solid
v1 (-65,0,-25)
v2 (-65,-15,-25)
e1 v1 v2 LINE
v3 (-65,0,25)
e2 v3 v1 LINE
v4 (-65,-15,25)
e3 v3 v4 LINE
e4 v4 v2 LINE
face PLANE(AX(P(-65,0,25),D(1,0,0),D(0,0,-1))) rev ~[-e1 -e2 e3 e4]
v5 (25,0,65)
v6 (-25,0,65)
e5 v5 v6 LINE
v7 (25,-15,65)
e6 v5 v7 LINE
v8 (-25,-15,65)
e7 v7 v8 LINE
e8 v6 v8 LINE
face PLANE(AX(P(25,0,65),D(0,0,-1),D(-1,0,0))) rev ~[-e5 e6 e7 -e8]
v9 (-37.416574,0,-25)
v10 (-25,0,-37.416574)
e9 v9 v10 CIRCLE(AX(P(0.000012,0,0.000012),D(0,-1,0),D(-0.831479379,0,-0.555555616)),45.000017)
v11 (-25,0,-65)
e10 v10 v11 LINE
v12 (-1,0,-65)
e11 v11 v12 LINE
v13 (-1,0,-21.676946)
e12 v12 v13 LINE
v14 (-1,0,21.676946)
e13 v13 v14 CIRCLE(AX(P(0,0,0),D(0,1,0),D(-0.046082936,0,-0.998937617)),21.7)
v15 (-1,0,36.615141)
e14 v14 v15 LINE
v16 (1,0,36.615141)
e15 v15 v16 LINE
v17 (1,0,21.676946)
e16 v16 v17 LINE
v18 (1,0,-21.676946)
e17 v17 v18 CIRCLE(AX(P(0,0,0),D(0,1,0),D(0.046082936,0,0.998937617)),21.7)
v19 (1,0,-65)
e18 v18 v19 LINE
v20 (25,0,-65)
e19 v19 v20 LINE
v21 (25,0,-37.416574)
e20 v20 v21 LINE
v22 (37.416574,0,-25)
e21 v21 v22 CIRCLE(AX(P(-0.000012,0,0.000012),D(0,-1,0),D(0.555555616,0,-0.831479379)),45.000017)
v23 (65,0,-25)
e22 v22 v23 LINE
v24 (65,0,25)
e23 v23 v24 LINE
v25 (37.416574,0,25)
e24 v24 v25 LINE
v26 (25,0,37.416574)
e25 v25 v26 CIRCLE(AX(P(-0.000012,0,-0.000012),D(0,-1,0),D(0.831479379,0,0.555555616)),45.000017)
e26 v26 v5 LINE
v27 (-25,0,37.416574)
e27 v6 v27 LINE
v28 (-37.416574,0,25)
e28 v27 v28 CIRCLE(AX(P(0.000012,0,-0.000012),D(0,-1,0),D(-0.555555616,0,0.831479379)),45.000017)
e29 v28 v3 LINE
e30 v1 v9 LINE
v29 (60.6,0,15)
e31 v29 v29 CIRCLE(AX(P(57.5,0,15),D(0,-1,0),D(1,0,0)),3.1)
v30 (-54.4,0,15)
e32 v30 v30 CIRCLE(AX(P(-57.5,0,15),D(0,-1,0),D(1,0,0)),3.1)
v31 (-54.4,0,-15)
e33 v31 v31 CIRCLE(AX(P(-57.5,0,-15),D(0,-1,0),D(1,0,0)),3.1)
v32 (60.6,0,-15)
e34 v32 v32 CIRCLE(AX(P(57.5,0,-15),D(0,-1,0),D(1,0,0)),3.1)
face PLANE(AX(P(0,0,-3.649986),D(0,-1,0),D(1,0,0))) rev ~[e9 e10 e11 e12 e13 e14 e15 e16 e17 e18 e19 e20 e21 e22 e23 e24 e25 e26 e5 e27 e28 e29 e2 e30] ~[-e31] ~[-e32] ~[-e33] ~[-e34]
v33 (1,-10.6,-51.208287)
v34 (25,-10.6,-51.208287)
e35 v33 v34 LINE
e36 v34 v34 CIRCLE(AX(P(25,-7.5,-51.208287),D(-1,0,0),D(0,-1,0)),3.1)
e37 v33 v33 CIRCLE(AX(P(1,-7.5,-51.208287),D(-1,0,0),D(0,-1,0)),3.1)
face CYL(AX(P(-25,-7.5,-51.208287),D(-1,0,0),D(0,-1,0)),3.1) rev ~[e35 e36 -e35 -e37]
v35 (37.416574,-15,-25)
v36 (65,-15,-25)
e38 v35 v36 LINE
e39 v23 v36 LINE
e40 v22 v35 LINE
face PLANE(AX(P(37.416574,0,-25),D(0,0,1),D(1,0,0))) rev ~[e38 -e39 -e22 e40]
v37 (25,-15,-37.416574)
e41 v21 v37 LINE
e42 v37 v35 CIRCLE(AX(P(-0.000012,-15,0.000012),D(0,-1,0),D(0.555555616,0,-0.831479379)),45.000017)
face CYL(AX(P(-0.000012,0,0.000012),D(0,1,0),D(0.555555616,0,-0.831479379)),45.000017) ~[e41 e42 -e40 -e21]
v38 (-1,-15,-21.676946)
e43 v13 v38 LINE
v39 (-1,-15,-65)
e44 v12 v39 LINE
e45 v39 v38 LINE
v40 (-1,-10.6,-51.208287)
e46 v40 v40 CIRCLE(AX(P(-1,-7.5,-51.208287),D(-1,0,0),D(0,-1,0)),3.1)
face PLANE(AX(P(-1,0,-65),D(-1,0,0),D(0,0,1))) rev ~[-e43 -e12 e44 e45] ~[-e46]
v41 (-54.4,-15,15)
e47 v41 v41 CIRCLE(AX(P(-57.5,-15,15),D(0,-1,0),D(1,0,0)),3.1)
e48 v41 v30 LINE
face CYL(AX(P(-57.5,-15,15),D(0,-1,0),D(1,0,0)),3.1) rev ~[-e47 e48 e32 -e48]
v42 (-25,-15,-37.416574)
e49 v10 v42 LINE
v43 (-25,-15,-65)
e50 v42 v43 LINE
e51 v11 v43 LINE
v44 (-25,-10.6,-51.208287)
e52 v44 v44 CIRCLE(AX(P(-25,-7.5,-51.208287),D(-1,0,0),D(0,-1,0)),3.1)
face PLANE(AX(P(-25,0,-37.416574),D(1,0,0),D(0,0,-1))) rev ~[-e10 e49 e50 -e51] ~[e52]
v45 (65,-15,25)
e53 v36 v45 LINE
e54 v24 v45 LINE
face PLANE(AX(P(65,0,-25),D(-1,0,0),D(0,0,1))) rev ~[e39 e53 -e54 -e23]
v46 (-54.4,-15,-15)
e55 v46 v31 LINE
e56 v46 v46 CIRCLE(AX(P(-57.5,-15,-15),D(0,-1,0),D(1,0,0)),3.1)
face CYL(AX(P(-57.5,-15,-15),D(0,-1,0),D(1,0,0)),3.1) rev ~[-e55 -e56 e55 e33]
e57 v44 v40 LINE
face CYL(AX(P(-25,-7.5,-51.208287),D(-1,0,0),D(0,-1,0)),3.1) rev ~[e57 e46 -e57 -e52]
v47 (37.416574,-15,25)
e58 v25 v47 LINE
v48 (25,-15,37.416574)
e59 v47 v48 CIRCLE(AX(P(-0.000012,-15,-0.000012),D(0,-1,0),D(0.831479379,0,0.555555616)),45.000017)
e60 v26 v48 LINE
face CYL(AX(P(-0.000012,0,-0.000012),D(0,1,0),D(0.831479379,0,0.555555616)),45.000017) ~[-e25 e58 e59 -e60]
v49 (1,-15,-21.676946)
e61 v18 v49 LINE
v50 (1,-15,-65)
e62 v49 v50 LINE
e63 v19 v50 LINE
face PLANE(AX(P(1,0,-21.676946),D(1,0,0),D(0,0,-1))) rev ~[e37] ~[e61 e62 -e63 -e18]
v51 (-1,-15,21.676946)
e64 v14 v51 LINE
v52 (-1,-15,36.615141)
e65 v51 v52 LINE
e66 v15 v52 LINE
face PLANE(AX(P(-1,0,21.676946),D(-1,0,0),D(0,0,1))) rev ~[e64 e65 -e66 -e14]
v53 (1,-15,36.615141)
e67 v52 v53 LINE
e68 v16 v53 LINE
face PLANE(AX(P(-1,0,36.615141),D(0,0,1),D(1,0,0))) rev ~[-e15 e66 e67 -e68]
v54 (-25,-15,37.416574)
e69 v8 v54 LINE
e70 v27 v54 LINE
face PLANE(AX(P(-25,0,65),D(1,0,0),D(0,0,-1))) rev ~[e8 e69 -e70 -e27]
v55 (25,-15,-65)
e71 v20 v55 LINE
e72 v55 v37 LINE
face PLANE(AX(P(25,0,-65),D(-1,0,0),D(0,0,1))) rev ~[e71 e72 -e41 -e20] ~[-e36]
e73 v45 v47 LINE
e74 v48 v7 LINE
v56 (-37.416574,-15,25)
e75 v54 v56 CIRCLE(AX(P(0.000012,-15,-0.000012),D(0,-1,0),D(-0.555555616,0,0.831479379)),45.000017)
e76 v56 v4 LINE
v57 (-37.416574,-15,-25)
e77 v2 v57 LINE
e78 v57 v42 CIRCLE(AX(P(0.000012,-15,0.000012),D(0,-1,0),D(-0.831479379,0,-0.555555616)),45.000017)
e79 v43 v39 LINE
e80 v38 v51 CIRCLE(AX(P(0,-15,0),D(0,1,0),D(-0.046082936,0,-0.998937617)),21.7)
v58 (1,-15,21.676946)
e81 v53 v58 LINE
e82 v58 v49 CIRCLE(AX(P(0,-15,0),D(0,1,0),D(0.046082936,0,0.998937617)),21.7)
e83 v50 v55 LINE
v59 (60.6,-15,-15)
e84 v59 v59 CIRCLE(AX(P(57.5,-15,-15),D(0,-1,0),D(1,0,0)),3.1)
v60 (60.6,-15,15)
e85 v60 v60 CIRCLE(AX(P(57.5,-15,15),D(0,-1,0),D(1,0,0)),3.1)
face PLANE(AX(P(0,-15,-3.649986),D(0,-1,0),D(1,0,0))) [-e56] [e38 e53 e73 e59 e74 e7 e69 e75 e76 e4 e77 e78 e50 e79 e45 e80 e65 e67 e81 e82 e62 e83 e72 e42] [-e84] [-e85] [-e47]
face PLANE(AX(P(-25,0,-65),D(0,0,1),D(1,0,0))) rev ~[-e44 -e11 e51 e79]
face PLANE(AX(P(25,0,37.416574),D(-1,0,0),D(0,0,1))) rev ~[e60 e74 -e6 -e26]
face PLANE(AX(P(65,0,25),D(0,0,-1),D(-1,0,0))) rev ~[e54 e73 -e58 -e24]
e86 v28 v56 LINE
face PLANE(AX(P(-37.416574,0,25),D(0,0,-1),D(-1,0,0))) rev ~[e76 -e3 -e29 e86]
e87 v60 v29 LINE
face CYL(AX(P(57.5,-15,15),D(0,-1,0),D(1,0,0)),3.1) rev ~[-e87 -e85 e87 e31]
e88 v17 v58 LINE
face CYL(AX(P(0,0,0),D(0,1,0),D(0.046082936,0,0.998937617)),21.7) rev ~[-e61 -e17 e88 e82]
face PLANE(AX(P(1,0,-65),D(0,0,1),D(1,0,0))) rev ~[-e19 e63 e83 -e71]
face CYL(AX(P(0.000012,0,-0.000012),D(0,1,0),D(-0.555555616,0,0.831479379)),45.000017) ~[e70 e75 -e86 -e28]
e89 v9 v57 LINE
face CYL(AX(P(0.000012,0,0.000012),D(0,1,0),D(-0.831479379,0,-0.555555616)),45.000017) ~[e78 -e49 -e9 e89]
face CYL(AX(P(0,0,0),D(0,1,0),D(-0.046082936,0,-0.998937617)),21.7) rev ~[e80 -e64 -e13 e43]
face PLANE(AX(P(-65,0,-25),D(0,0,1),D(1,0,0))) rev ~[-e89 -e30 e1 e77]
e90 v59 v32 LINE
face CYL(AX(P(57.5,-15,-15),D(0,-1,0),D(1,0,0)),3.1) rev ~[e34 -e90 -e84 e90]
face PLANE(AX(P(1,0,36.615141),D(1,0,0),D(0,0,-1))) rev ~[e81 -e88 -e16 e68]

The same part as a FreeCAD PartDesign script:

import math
import FreeCAD as App
import Part
import Sketcher
Q = App.Units.Quantity

doc = App.newDocument("Part")
body = doc.addObject("PartDesign::Body", "Body")

# Sketch on XZ plane
sketch1 = body.newObject("Sketcher::SketchObject", "Sketch")
sketch1.AttachmentSupport = (doc.getObject("XZ_Plane"), [""])
sketch1.MapMode = "FlatFace"
sketch1.addGeometry([
    Part.LineSegment(App.Vector(65, 25, 0), App.Vector(37.416574, 25, 0)),  # 0
    Part.ArcOfCircle(Part.Circle(App.Vector(-0.000012, -0.000012, 0), App.Vector(0, 0, 1), 45.000017), math.radians(33.748993), math.radians(56.251007)),  # 1
    Part.LineSegment(App.Vector(25, 37.416574, 0), App.Vector(25, 65, 0)),  # 2
    Part.LineSegment(App.Vector(25, 65, 0), App.Vector(-25, 65, 0)),  # 3
    Part.LineSegment(App.Vector(-25, 65, 0), App.Vector(-25, 37.416574, 0)),  # 4
    Part.ArcOfCircle(Part.Circle(App.Vector(0.000012, -0.000012, 0), App.Vector(0, 0, 1), 45.000017), math.radians(123.748993), math.radians(146.251007)),  # 5
    Part.LineSegment(App.Vector(-37.416574, 25, 0), App.Vector(-65, 25, 0)),  # 6
    Part.LineSegment(App.Vector(-65, 25, 0), App.Vector(-65, -25, 0)),  # 7
    Part.LineSegment(App.Vector(-65, -25, 0), App.Vector(-37.416574, -25, 0)),  # 8
    Part.ArcOfCircle(Part.Circle(App.Vector(0.000012, 0.000012, 0), App.Vector(0, 0, 1), 45.000017), math.radians(-146.251007), math.radians(-123.748993)),  # 9
    Part.LineSegment(App.Vector(-25, -37.416574, 0), App.Vector(-25, -65, 0)),  # 10
    Part.LineSegment(App.Vector(-25, -65, 0), App.Vector(-1, -65, 0)),  # 11
    Part.LineSegment(App.Vector(-1, -65, 0), App.Vector(-1, -21.676946, 0)),  # 12
    Part.ArcOfCircle(Part.Circle(App.Vector(0, 0, 0), App.Vector(0, 0, 1), 21.7), math.radians(92.641293), math.radians(267.358707)),  # 13
    Part.LineSegment(App.Vector(-1, 21.676946, 0), App.Vector(-1, 36.615141, 0)),  # 14
    Part.LineSegment(App.Vector(-1, 36.615141, 0), App.Vector(1, 36.615141, 0)),  # 15
    Part.LineSegment(App.Vector(1, 36.615141, 0), App.Vector(1, 21.676946, 0)),  # 16
    Part.ArcOfCircle(Part.Circle(App.Vector(0, 0, 0), App.Vector(0, 0, 1), 21.7), math.radians(-87.358707), math.radians(87.358707)),  # 17
    Part.LineSegment(App.Vector(1, -21.676946, 0), App.Vector(1, -65, 0)),  # 18
    Part.LineSegment(App.Vector(1, -65, 0), App.Vector(25, -65, 0)),  # 19
    Part.LineSegment(App.Vector(25, -65, 0), App.Vector(25, -37.416574, 0)),  # 20
    Part.ArcOfCircle(Part.Circle(App.Vector(-0.000012, 0.000012, 0), App.Vector(0, 0, 1), 45.000017), math.radians(-56.251007), math.radians(-33.748993)),  # 21
    Part.LineSegment(App.Vector(37.416574, -25, 0), App.Vector(65, -25, 0)),  # 22
    Part.LineSegment(App.Vector(65, -25, 0), App.Vector(65, 25, 0)),  # 23
], False)
sketch1.addConstraint([
    Sketcher.Constraint("Coincident", 0, 2, 1, 1),
    Sketcher.Constraint("Coincident", 1, 2, 2, 1),
    Sketcher.Constraint("Coincident", 2, 2, 3, 1),
    Sketcher.Constraint("Coincident", 3, 2, 4, 1),
    Sketcher.Constraint("Coincident", 4, 2, 5, 1),
    Sketcher.Constraint("Coincident", 5, 2, 6, 1),
    Sketcher.Constraint("Coincident", 6, 2, 7, 1),
    Sketcher.Constraint("Coincident", 7, 2, 8, 1),
    Sketcher.Constraint("Coincident", 8, 2, 9, 1),
    Sketcher.Constraint("Coincident", 9, 2, 10, 1),
    Sketcher.Constraint("Coincident", 10, 2, 11, 1),
    Sketcher.Constraint("Coincident", 11, 2, 12, 1),
    Sketcher.Constraint("Coincident", 12, 2, 13, 2),
    Sketcher.Constraint("Coincident", 13, 1, 14, 1),
    Sketcher.Constraint("Coincident", 14, 2, 15, 1),
    Sketcher.Constraint("Coincident", 15, 2, 16, 1),
    Sketcher.Constraint("Coincident", 16, 2, 17, 2),
    Sketcher.Constraint("Coincident", 17, 1, 18, 1),
    Sketcher.Constraint("Coincident", 18, 2, 19, 1),
    Sketcher.Constraint("Coincident", 19, 2, 20, 1),
    Sketcher.Constraint("Coincident", 20, 2, 21, 1),
    Sketcher.Constraint("Coincident", 21, 2, 22, 1),
    Sketcher.Constraint("Coincident", 22, 2, 23, 1),
    Sketcher.Constraint("Coincident", 23, 2, 0, 1),
    Sketcher.Constraint("Horizontal", 0),
    Sketcher.Constraint("Vertical", 2),
    Sketcher.Constraint("Horizontal", 3),
    Sketcher.Constraint("Vertical", 4),
    Sketcher.Constraint("Horizontal", 6),
    Sketcher.Constraint("Vertical", 7),
    Sketcher.Constraint("Horizontal", 8),
    Sketcher.Constraint("Vertical", 10),
    Sketcher.Constraint("Horizontal", 11),
    Sketcher.Constraint("Vertical", 12),
    Sketcher.Constraint("Vertical", 14),
    Sketcher.Constraint("Horizontal", 15),
    Sketcher.Constraint("Vertical", 16),
    Sketcher.Constraint("Vertical", 18),
    Sketcher.Constraint("Horizontal", 19),
    Sketcher.Constraint("Vertical", 20),
    Sketcher.Constraint("Horizontal", 22),
    Sketcher.Constraint("Vertical", 23),
    Sketcher.Constraint("Coincident", 13, 3, -1, 1),
    Sketcher.Constraint("Coincident", 17, 3, -1, 1),
    Sketcher.Constraint("Equal", 1, 5),
    Sketcher.Constraint("Equal", 5, 9),
    Sketcher.Constraint("Equal", 13, 17),
    Sketcher.Constraint("Equal", 9, 21),
    Sketcher.Constraint("Symmetric", 1, 3, 9, 3, -1, 1),
    Sketcher.Constraint("Symmetric", 5, 3, 21, 3, -1, 1),
    Sketcher.Constraint("Symmetric", 2, 2, 10, 2, -1, 1),
    Sketcher.Constraint("Symmetric", 3, 2, 19, 2, -1, 1),
    Sketcher.Constraint("Symmetric", 6, 2, 22, 2, -1, 1),
    Sketcher.Constraint("Symmetric", 1, 3, 5, 3, -2),
    Sketcher.Constraint("Horizontal", 1, 2, 4, 2),
    Sketcher.Constraint("Horizontal", 0, 2, 5, 2),
    Sketcher.Constraint("Horizontal", 13, 1, 16, 2),
    Sketcher.Constraint("Horizontal", 12, 2, 17, 1),
    Sketcher.Constraint("Horizontal", 8, 2, 21, 2),
    Sketcher.Constraint("Vertical", 12, 2, 13, 1),
    Sketcher.Constraint("Equal", 22, 2),
    Sketcher.Constraint("Equal", 3, 7),
    Sketcher.Constraint("Radius", 13, Q("21.7 mm")),
    Sketcher.Constraint("DistanceX", 3, 2, 3, 1, Q("50 mm")),
    Sketcher.Constraint("DistanceX", 11, 1, 11, 2, Q("24 mm")),
    Sketcher.Constraint("DistanceY", -1, 1, 2, 2, Q("65 mm")),
    Sketcher.Constraint("DistanceX", 6, 2, -1, 1, Q("65 mm")),
    Sketcher.Constraint("Radius", 1, Q("45.000017 mm")),
    Sketcher.Constraint("DistanceX", 0, 2, 0, 1, Q("27.583426 mm")),
    Sketcher.Constraint("DistanceY", 14, 1, 14, 2, Q("14.938195 mm")),
])
pad1 = body.newObject("PartDesign::Pad", "Pad")
pad1.Profile = sketch1
pad1.Length = 15

# Sketch on XZ plane
sketch2 = body.newObject("Sketcher::SketchObject", "Sketch001")
sketch2.AttachmentSupport = (doc.getObject("XZ_Plane"), [""])
sketch2.MapMode = "FlatFace"
sketch2.AttachmentOffset = App.Placement(App.Vector(0, 0, 15), App.Rotation())
sketch2.addGeometry([
    Part.Circle(App.Vector(57.5, 15, 0), App.Vector(0, 0, 1), 3.1),
    Part.Circle(App.Vector(57.5, -15, 0), App.Vector(0, 0, 1), 3.1),
    Part.Circle(App.Vector(-57.5, 15, 0), App.Vector(0, 0, 1), 3.1),
    Part.Circle(App.Vector(-57.5, -15, 0), App.Vector(0, 0, 1), 3.1),
], False)
sketch2.addConstraint([
    Sketcher.Constraint("Equal", 0, 1),
    Sketcher.Constraint("Equal", 1, 2),
    Sketcher.Constraint("Equal", 2, 3),
    Sketcher.Constraint("Symmetric", 1, 3, 2, 3, -1, 1),
    Sketcher.Constraint("Symmetric", 0, 3, 3, 3, -1, 1),
    Sketcher.Constraint("Symmetric", 0, 3, 2, 3, -2),
    Sketcher.Constraint("Diameter", 0, Q("6.2 mm")),
    Sketcher.Constraint("DistanceY", -1, 1, 0, 3, Q("15 mm")),
    Sketcher.Constraint("DistanceX", 2, 3, 0, 3, Q("115 mm")),
])
pocket1 = body.newObject("PartDesign::Pocket", "Pocket")
pocket1.Profile = sketch2
pocket1.Length = 25

# Sketch on YZ plane
sketch3 = body.newObject("Sketcher::SketchObject", "Sketch002")
sketch3.AttachmentSupport = (doc.getObject("YZ_Plane"), [""])
sketch3.MapMode = "FlatFace"
sketch3.AttachmentOffset = App.Placement(App.Vector(0, 0, -25), App.Rotation())
sketch3.addGeometry(Part.Circle(App.Vector(-7.5, -51.2, 0), App.Vector(0, 0, 1), 3.1), False)
sketch3.addConstraint([
    Sketcher.Constraint("Diameter", 0, Q("6.2 mm")),
    Sketcher.Constraint("DistanceX", 0, 3, -1, 1, Q("7.5 mm")),
    Sketcher.Constraint("DistanceY", 0, 3, -1, 1, Q("51.208287 mm")),
])
pocket2 = body.newObject("PartDesign::Pocket", "Pocket001")
pocket2.Profile = sketch3
pocket2.Length = 56.6
pocket2.Reversed = True

doc.recompute()
